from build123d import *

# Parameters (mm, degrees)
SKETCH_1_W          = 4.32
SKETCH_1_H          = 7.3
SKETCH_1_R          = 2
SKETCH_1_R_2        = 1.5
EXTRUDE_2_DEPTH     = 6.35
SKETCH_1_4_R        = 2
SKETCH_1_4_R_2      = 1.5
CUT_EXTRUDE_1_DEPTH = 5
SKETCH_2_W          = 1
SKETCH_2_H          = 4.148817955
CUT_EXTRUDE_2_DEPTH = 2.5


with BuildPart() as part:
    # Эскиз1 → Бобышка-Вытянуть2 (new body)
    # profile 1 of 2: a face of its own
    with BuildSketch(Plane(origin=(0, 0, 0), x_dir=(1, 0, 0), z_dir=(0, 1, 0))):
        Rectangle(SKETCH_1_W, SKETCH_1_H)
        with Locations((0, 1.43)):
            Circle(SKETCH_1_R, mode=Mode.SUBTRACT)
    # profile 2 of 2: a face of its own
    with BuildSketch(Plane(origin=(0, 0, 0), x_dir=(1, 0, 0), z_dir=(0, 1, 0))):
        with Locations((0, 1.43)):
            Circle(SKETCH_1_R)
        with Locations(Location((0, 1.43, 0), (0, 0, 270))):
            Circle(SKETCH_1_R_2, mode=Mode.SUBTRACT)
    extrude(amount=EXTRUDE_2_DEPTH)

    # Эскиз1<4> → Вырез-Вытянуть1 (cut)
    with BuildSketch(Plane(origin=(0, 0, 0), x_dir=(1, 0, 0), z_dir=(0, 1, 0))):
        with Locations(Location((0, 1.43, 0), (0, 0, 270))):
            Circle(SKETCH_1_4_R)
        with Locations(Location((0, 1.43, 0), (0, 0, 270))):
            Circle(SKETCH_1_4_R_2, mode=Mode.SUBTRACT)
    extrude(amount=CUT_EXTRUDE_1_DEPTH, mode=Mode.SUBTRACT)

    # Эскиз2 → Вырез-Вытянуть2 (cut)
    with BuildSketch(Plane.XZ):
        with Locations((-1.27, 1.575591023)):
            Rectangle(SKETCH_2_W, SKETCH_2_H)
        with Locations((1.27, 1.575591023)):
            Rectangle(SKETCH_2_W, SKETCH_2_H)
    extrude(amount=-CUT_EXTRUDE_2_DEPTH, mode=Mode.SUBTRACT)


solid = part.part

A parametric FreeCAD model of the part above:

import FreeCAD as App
import Part
import Sketcher
from FreeCAD import Vector
Q = App.Units.Quantity

doc = App.newDocument("Part")
body = doc.addObject("PartDesign::Body", "Body")

sketch1 = doc.addObject("Sketcher::SketchObject", "Sketch")
body.addObject(sketch1)
sketch1.AttachmentSupport = (doc.XZ_Plane, [""])
sketch1.MapMode = "FlatFace"
sketch1.addGeometry(Part.LineSegment(Vector(-2.2, -3.6, 0), Vector(-2.2, 3.6, 0)), False)
sketch1.addGeometry(Part.LineSegment(Vector(-2.2, 3.6, 0), Vector(2.2, 3.6, 0)), False)
sketch1.addGeometry(Part.LineSegment(Vector(2.2, 3.6, 0), Vector(2.2, -3.6, 0)), False)
sketch1.addGeometry(Part.LineSegment(Vector(2.2, -3.6, 0), Vector(-2.2, -3.6, 0)), False)
sketch1.addGeometry(Part.Circle(Vector(0, -1.4, 0), Vector(0, 0, 1), 1.5), False)
sketch1.addConstraint(Sketcher.Constraint("Coincident", 0, 2, 1, 1))
sketch1.addConstraint(Sketcher.Constraint("Coincident", 1, 2, 2, 1))
sketch1.addConstraint(Sketcher.Constraint("Coincident", 2, 2, 3, 1))
sketch1.addConstraint(Sketcher.Constraint("Coincident", 3, 2, 0, 1))
sketch1.addConstraint(Sketcher.Constraint("Vertical", 0))
sketch1.addConstraint(Sketcher.Constraint("Horizontal", 1))
sketch1.addConstraint(Sketcher.Constraint("Vertical", 2))
sketch1.addConstraint(Sketcher.Constraint("Horizontal", 3))
sketch1.addConstraint(Sketcher.Constraint("Symmetric", 0, 2, 2, 2, -1, 1))
sketch1.addConstraint(Sketcher.Constraint("PointOnObject", 4, 3, -2))
sketch1.addConstraint(Sketcher.Constraint("Diameter", 4, Q("3 mm")))
sketch1.addConstraint(Sketcher.Constraint("DistanceY", 0, 1, 0, 2, Q("7.3 mm")))
sketch1.addConstraint(Sketcher.Constraint("DistanceX", 1, 1, 1, 2, Q("4.32 mm")))
sketch1.addConstraint(Sketcher.Constraint("DistanceY", 4, 3, -1, 1, Q("1.43 mm")))
pad1 = doc.addObject("PartDesign::Pad", "Pad")
body.addObject(pad1)
pad1.Profile = sketch1
pad1.Length = 6.35
pad1.Reversed = True

sketch2 = doc.addObject("Sketcher::SketchObject", "Sketch001")
body.addObject(sketch2)
sketch2.AttachmentSupport = (doc.XZ_Plane, [""])
sketch2.MapMode = "FlatFace"
sketch2.addGeometry(Part.Circle(Vector(0, -1.4, 0), Vector(0, 0, 1), 2), False)
sketch2.addGeometry(Part.Circle(Vector(0, -1.4, 0), Vector(0, 0, 1), 1.5), False)
sketch2.addConstraint(Sketcher.Constraint("Coincident", 1, 3, 0, 3))
sketch2.addConstraint(Sketcher.Constraint("PointOnObject", 0, 3, -2))
sketch2.addConstraint(Sketcher.Constraint("Diameter", 0, Q("4 mm")))
sketch2.addConstraint(Sketcher.Constraint("Diameter", 1, Q("3 mm")))
sketch2.addConstraint(Sketcher.Constraint("DistanceY", 0, 3, -1, 1, Q("1.43 mm")))
pocket1 = doc.addObject("PartDesign::Pocket", "Pocket")
body.addObject(pocket1)
pocket1.Profile = sketch2
pocket1.Length = 5

sketch3 = doc.addObject("Sketcher::SketchObject", "Sketch002")
body.addObject(sketch3)
sketch3.AttachmentSupport = (doc.XZ_Plane, [""])
sketch3.MapMode = "FlatFace"
sketch3.addGeometry(Part.LineSegment(Vector(-1.8, 3.7, 0), Vector(-1.8, -0.5, 0)), False)
sketch3.addGeometry(Part.LineSegment(Vector(-1.8, -0.5, 0), Vector(-0.8, -0.5, 0)), False)
sketch3.addGeometry(Part.LineSegment(Vector(-0.8, -0.5, 0), Vector(-0.8, 3.7, 0)), False)
sketch3.addGeometry(Part.LineSegment(Vector(-0.8, 3.7, 0), Vector(-1.8, 3.7, 0)), False)
sketch3.addGeometry(Part.LineSegment(Vector(0.8, 3.7, 0), Vector(0.8, -0.5, 0)), False)
sketch3.addGeometry(Part.LineSegment(Vector(0.8, -0.5, 0), Vector(1.8, -0.5, 0)), False)
sketch3.addGeometry(Part.LineSegment(Vector(1.8, -0.5, 0), Vector(1.8, 3.7, 0)), False)
sketch3.addGeometry(Part.LineSegment(Vector(1.8, 3.7, 0), Vector(0.8, 3.7, 0)), False)
sketch3.addConstraint(Sketcher.Constraint("Coincident", 0, 2, 1, 1))
sketch3.addConstraint(Sketcher.Constraint("Coincident", 1, 2, 2, 1))
sketch3.addConstraint(Sketcher.Constraint("Coincident", 2, 2, 3, 1))
sketch3.addConstraint(Sketcher.Constraint("Coincident", 3, 2, 0, 1))
sketch3.addConstraint(Sketcher.Constraint("Coincident", 4, 2, 5, 1))
sketch3.addConstraint(Sketcher.Constraint("Coincident", 5, 2, 6, 1))
sketch3.addConstraint(Sketcher.Constraint("Coincident", 6, 2, 7, 1))
sketch3.addConstraint(Sketcher.Constraint("Coincident", 7, 2, 4, 1))
sketch3.addConstraint(Sketcher.Constraint("Vertical", 0))
sketch3.addConstraint(Sketcher.Constraint("Horizontal", 1))
sketch3.addConstraint(Sketcher.Constraint("Vertical", 2))
sketch3.addConstraint(Sketcher.Constraint("Horizontal", 3))
sketch3.addConstraint(Sketcher.Constraint("Vertical", 4))
sketch3.addConstraint(Sketcher.Constraint("Horizontal", 5))
sketch3.addConstraint(Sketcher.Constraint("Vertical", 6))
sketch3.addConstraint(Sketcher.Constraint("Horizontal", 7))
sketch3.addConstraint(Sketcher.Constraint("Symmetric", 1, 2, 4, 2, -2))
sketch3.addConstraint(Sketcher.Constraint("Symmetric", 3, 2, 6, 2, -2))
sketch3.addConstraint(Sketcher.Constraint("DistanceX", 1, 1, 1, 2, Q("1 mm")))
sketch3.addConstraint(Sketcher.Constraint("DistanceX", 0, 2, -1, 1, Q("1.77 mm")))
sketch3.addConstraint(Sketcher.Constraint("DistanceY", -1, 1, 2, 2, Q("3.65 mm")))
sketch3.addConstraint(Sketcher.Constraint("DistanceY", 0, 2, 0, 1, Q("4.148818 mm")))
pocket2 = doc.addObject("PartDesign::Pocket", "Pocket001")
body.addObject(pocket2)
pocket2.Profile = sketch3
pocket2.Length = 2.5

doc.recompute()
